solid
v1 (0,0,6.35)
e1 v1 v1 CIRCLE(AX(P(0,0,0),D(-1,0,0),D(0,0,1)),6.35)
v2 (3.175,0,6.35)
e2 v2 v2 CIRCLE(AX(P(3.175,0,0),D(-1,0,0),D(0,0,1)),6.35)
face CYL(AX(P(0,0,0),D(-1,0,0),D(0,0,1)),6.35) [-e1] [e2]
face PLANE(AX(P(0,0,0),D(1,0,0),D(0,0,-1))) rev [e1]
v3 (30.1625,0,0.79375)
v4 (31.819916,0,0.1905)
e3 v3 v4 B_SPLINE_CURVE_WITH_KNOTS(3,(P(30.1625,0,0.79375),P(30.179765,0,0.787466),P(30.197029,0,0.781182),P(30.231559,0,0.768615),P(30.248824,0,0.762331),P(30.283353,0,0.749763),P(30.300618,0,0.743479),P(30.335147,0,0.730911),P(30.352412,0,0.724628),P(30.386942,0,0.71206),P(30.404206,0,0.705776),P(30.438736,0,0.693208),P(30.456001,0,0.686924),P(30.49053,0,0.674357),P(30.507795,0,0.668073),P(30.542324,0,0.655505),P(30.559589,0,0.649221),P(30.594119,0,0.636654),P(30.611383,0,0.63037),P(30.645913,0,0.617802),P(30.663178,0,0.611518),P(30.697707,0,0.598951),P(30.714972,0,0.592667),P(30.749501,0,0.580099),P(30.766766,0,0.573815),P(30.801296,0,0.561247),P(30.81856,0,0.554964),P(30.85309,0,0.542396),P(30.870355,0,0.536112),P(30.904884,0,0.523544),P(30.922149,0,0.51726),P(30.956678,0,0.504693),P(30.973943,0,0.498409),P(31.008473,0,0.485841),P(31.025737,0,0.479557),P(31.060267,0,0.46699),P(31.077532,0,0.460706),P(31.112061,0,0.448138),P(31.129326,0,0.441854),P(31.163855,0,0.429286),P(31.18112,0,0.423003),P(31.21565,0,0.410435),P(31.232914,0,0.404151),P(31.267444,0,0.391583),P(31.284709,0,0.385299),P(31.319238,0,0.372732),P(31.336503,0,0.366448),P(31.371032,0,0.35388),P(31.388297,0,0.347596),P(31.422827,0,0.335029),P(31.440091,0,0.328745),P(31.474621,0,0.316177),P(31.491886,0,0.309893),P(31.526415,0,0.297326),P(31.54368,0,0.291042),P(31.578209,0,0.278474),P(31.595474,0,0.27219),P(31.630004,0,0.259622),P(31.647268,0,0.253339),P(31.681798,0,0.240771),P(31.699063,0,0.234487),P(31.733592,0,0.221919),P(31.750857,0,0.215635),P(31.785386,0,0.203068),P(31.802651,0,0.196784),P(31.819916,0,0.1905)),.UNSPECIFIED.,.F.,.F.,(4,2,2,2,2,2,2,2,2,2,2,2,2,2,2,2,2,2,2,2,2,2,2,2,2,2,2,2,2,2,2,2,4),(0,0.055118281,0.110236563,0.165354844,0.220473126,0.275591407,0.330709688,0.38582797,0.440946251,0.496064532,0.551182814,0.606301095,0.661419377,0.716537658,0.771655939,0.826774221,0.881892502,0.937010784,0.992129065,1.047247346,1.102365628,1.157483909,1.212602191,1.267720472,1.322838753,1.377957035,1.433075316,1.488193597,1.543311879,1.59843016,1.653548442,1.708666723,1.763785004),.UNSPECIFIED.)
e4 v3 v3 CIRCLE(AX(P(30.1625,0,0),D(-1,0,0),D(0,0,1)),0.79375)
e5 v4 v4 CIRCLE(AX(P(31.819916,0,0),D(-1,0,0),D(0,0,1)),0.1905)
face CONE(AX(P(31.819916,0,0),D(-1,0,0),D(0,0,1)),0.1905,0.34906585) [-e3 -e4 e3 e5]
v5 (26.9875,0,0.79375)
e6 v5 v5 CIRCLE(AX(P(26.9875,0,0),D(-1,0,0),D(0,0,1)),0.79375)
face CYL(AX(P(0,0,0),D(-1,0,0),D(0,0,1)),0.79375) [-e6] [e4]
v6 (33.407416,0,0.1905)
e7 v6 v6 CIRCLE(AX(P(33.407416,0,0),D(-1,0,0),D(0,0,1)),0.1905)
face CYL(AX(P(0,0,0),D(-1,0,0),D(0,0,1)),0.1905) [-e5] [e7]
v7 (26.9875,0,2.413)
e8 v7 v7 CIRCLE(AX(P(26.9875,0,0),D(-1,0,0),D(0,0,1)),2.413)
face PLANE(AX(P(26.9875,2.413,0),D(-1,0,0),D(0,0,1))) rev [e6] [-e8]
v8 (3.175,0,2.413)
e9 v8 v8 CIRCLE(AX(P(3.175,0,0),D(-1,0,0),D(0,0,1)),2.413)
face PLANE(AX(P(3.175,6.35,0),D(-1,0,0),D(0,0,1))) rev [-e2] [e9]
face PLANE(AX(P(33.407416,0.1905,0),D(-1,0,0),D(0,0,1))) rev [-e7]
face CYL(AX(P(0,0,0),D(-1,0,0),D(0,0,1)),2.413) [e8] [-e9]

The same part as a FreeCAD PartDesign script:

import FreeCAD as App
import Part
import Sketcher
from FreeCAD import Vector
Q = App.Units.Quantity


def add_polygon(sketch, points):
    """Adds a closed chain of lines whose ends are joined by coincident constraints."""
    first, n = sketch.GeometryCount, len(points)
    for a, b in zip(points, points[1:] + points[:1]):
        sketch.addGeometry(Part.LineSegment(App.Vector(*a, 0), App.Vector(*b, 0)), False)
    for i in range(n):
        sketch.addConstraint(Sketcher.Constraint("Coincident", first + i, 2, first + (i + 1) % n, 1))

doc = App.newDocument("Part")
body = doc.addObject("PartDesign::Body", "Body")

# Sketch on XY plane
sketch1 = body.newObject("Sketcher::SketchObject", "Sketch")
sketch1.AttachmentSupport = (doc.getObject("XY_Plane"), [""])
sketch1.MapMode = "FlatFace"
add_polygon(sketch1, [(0, 6.35), (0, 0), (33.41, 0), (33.41, 0.19), (31.82, 0.19), (30.16, 0.79), (26.99, 0.79), (26.99, 2.41), (3.17, 2.41), (3.17, 6.35)])  # lines 0-9
sketch1.addConstraint(Sketcher.Constraint("Vertical", 0))
sketch1.addConstraint(Sketcher.Constraint("Horizontal", 1))
sketch1.addConstraint(Sketcher.Constraint("Vertical", 2))
sketch1.addConstraint(Sketcher.Constraint("Horizontal", 3))
sketch1.addConstraint(Sketcher.Constraint("Horizontal", 5))
sketch1.addConstraint(Sketcher.Constraint("Vertical", 6))
sketch1.addConstraint(Sketcher.Constraint("Horizontal", 7))
sketch1.addConstraint(Sketcher.Constraint("Vertical", 8))
sketch1.addConstraint(Sketcher.Constraint("Horizontal", 9))
sketch1.addConstraint(Sketcher.Constraint("Coincident", 0, 2, -1, 1))
sketch1.addConstraint(Sketcher.Constraint("Equal", 5, 9))
sketch1.addConstraint(Sketcher.Constraint("Angle", 4, Q("160 deg")))
sketch1.addConstraint(Sketcher.Constraint("DistanceY", 0, 2, 0, 1, Q("0.25 in")))
sketch1.addConstraint(Sketcher.Constraint("DistanceX", 3, 2, 3, 1, Q("0.0625 in")))
sketch1.addConstraint(Sketcher.Constraint("DistanceX", 5, 2, 5, 1, Q("0.125 in")))
sketch1.addConstraint(Sketcher.Constraint("DistanceX", 7, 2, 7, 1, Q("0.9375 in")))
sketch1.addConstraint(Sketcher.Constraint("DistanceY", 8, 1, 8, 2, Q("0.155 in")))
sketch1.addConstraint(Sketcher.Constraint("DistanceY", 2, 1, 2, 2, Q("0.0075 in")))
sketch1.addConstraint(Sketcher.Constraint("DistanceY", -1, 1, 4, 2, Q("0.03125 in")))
revolution = body.newObject("PartDesign::Revolution", "Revolution")
revolution.Profile = sketch1
revolution.ReferenceAxis = (sketch1, ["H_Axis"])
revolution.Angle = 360

doc.recompute()
